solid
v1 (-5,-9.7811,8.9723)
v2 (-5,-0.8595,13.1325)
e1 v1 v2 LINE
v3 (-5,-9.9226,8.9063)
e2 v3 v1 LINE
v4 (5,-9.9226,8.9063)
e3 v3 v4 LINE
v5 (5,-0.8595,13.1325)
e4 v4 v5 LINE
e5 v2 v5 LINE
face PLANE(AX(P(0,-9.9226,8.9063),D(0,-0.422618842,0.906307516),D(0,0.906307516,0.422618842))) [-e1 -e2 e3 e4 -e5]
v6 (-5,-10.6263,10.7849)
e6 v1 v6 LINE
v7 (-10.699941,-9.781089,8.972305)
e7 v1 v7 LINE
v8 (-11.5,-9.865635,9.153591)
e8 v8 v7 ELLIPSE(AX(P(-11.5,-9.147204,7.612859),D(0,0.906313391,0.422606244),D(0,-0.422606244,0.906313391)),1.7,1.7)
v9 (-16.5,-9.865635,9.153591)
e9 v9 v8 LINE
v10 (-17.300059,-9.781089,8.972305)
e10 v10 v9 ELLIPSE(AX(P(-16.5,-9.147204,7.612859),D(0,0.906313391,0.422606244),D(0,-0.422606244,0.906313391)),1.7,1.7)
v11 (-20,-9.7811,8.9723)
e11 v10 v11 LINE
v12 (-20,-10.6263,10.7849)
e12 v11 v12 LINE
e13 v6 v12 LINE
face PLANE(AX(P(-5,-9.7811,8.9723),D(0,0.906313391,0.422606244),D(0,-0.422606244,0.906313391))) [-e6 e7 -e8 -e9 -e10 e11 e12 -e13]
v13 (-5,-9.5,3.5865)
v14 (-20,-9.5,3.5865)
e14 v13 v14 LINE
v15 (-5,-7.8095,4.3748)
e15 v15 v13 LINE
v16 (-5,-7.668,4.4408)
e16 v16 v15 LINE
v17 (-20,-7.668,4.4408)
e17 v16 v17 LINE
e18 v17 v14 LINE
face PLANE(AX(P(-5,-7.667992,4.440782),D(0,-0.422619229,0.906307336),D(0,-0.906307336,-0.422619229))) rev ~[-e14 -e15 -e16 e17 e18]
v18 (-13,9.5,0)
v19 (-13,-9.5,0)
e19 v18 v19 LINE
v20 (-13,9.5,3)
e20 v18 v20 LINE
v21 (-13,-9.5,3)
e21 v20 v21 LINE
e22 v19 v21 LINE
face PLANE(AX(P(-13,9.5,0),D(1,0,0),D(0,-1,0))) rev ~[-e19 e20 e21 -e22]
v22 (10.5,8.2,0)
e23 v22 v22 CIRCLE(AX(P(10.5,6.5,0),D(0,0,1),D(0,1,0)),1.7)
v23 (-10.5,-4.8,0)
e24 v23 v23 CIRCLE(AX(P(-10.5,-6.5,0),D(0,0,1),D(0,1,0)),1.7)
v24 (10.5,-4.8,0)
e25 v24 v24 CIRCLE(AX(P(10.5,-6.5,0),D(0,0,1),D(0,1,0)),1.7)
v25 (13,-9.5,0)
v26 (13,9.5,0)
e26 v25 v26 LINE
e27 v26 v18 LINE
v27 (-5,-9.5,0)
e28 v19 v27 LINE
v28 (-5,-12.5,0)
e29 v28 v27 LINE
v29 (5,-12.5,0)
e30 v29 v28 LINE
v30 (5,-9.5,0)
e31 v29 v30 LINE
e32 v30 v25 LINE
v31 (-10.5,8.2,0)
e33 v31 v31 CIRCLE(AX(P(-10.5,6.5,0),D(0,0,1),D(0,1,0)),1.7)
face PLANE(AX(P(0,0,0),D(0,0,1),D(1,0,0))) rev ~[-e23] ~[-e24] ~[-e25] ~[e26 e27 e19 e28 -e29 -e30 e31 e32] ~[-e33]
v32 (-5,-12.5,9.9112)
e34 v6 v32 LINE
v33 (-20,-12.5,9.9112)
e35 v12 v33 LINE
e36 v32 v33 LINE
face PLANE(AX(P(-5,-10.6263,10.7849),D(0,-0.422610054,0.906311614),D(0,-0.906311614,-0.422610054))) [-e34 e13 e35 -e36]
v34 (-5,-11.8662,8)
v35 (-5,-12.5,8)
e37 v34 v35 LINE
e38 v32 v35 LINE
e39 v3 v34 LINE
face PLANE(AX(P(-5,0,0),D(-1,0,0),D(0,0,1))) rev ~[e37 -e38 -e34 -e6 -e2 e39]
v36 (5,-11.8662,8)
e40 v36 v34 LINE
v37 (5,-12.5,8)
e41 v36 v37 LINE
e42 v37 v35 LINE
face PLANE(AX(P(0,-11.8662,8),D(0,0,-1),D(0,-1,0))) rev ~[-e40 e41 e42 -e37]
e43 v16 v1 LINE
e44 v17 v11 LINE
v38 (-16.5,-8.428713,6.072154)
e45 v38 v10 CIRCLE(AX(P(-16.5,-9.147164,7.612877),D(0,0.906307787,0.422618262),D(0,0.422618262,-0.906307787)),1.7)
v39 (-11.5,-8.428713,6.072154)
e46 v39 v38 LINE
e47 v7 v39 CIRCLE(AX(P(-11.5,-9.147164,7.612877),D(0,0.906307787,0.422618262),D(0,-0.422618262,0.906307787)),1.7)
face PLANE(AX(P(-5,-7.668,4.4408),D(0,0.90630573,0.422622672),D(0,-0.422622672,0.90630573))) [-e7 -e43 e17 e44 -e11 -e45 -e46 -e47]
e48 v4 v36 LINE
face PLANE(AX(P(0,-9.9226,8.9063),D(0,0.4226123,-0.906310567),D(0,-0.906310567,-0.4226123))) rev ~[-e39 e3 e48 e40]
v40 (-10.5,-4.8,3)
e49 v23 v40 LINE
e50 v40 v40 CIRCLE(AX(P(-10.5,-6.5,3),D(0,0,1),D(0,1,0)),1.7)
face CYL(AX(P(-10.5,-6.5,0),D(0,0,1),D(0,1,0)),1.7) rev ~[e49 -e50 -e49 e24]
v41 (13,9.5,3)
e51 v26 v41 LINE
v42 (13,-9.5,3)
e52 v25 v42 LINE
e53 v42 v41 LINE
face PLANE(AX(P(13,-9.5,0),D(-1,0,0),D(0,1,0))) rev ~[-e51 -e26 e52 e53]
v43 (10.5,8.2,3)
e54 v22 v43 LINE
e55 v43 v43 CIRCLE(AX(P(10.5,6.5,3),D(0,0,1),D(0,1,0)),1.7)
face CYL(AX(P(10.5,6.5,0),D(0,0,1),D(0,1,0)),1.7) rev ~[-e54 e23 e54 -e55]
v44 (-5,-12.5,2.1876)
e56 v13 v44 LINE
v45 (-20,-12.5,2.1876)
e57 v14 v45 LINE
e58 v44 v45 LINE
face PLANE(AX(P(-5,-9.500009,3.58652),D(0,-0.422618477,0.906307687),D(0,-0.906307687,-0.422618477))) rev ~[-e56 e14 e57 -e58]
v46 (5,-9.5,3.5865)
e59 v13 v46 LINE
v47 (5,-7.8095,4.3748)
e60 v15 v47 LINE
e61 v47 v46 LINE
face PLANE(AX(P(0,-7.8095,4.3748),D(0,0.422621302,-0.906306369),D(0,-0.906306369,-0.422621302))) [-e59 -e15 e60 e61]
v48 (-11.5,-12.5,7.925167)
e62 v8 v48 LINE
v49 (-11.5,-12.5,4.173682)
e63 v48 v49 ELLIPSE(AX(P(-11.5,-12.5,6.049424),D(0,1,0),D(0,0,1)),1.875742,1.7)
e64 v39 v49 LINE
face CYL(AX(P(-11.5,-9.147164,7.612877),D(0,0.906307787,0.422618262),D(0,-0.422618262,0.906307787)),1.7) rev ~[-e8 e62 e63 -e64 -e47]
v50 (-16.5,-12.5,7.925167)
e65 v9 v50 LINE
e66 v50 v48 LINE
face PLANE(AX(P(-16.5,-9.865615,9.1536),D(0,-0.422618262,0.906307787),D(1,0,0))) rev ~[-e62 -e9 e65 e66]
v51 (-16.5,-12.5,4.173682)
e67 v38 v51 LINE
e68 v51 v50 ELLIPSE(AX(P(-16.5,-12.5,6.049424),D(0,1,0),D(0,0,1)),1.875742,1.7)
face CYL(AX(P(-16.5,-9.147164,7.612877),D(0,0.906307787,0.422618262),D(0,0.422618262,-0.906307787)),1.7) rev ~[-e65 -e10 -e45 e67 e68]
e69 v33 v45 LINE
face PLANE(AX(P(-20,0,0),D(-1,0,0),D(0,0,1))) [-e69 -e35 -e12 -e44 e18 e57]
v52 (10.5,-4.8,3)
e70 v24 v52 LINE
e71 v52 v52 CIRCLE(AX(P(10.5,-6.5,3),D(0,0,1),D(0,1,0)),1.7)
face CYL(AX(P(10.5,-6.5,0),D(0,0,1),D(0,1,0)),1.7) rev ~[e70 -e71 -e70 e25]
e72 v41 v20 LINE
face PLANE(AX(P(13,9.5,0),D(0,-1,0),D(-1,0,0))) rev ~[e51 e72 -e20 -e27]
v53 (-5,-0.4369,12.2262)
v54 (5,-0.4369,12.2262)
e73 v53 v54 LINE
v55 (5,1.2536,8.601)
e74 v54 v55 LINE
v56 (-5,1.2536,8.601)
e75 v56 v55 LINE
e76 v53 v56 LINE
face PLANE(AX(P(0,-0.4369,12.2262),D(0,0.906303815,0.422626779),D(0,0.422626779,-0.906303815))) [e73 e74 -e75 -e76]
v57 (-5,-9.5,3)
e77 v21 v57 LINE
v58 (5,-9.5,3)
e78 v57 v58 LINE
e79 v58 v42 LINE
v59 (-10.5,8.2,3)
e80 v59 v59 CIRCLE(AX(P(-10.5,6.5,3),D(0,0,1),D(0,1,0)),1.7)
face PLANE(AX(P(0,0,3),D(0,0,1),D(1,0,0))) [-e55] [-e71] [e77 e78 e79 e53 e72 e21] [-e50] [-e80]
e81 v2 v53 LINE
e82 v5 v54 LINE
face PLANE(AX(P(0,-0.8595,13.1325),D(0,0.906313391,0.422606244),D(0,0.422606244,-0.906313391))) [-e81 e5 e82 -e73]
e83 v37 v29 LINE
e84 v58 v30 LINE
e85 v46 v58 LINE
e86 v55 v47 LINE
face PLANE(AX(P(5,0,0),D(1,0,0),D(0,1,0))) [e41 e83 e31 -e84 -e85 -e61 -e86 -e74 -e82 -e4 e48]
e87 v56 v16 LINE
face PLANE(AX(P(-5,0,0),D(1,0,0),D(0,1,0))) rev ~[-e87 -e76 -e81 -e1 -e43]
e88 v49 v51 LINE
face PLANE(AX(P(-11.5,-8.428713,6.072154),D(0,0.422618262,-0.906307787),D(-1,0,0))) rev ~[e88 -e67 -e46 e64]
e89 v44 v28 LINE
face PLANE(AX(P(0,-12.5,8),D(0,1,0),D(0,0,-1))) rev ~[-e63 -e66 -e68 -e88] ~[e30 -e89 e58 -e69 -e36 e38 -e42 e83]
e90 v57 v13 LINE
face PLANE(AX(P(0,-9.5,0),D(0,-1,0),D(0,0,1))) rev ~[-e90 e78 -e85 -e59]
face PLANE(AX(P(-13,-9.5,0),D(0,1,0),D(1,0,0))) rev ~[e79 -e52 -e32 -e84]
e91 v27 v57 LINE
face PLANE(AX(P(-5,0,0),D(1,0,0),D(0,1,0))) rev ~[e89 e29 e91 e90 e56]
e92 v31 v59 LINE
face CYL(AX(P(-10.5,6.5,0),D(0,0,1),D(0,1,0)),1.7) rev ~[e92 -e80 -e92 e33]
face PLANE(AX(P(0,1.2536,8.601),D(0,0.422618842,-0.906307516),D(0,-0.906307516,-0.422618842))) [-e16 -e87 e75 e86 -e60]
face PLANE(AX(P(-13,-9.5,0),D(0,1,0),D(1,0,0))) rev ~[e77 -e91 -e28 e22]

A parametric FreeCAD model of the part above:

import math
import FreeCAD as App
import Part
import Sketcher
from FreeCAD import Vector
Q = App.Units.Quantity


def add_polygon(sketch, points):
    """Adds a closed chain of lines whose ends are joined by coincident constraints."""
    first, n = sketch.GeometryCount, len(points)
    for a, b in zip(points, points[1:] + points[:1]):
        sketch.addGeometry(Part.LineSegment(App.Vector(*a, 0), App.Vector(*b, 0)), False)
    for i in range(n):
        sketch.addConstraint(Sketcher.Constraint("Coincident", first + i, 2, first + (i + 1) % n, 1))

doc = App.newDocument("Part")
body = doc.addObject("PartDesign::Body", "Body")

sketch1 = body.newObject("Sketcher::SketchObject", "Sketch")
sketch1.AttachmentSupport = (doc.getObject("XY_Plane"), [""])
sketch1.MapMode = "FlatFace"
add_polygon(sketch1, [(-13, 10), (-13, -10), (13, -10), (13, 10)])
sketch1.addConstraint(Sketcher.Constraint("Vertical", 0))
sketch1.addConstraint(Sketcher.Constraint("Horizontal", 1))
sketch1.addConstraint(Sketcher.Constraint("Vertical", 2))
sketch1.addConstraint(Sketcher.Constraint("Horizontal", 3))
sketch1.addConstraint(Sketcher.Constraint("Symmetric", 0, 2, 2, 2, -1, 1))
sketch1.addConstraint(Sketcher.Constraint("DistanceX", 1, 1, 1, 2, Q("26 mm")))
sketch1.addConstraint(Sketcher.Constraint("DistanceY", 0, 2, 0, 1, Q("19 mm")))
pad1 = body.newObject("PartDesign::Pad", "Pad")
pad1.Profile = sketch1
pad1.Length = 3

sketch2 = body.newObject("Sketcher::SketchObject", "Sketch001")
sketch2.AttachmentSupport = (doc.getObject("XY_Plane"), [""])
sketch2.MapMode = "FlatFace"
sketch2.addGeometry(Part.Circle(Vector(10.5, 6.5, 0), Vector(0, 0, 1), 1.7), False)
sketch2.addGeometry(Part.Circle(Vector(-10.5, 6.5, 0), Vector(0, 0, 1), 1.7), False)
sketch2.addGeometry(Part.Circle(Vector(10.5, -6.5, 0), Vector(0, 0, 1), 1.7), False)
sketch2.addGeometry(Part.Circle(Vector(-10.5, -6.5, 0), Vector(0, 0, 1), 1.7), False)
sketch2.addConstraint(Sketcher.Constraint("Equal", 0, 1))
sketch2.addConstraint(Sketcher.Constraint("Equal", 1, 2))
sketch2.addConstraint(Sketcher.Constraint("Equal", 2, 3))
sketch2.addConstraint(Sketcher.Constraint("Symmetric", 1, 3, 2, 3, -1, 1))
sketch2.addConstraint(Sketcher.Constraint("Symmetric", 0, 3, 3, 3, -1, 1))
sketch2.addConstraint(Sketcher.Constraint("Symmetric", 0, 3, 1, 3, -2))
sketch2.addConstraint(Sketcher.Constraint("Diameter", 0, Q("3.4 mm")))
sketch2.addConstraint(Sketcher.Constraint("DistanceX", 1, 3, 0, 3, Q("21 mm")))
sketch2.addConstraint(Sketcher.Constraint("DistanceY", 2, 3, 0, 3, Q("13 mm")))
doc.recompute()
hole = body.newObject("PartDesign::Hole", "Hole")
hole.Profile = sketch2
hole.ThreadType = "None"
hole.Diameter = 3.4
hole.DepthType = "ThroughAll"
hole.Reversed = True

sketch3 = body.newObject("Sketcher::SketchObject", "Sketch002")
sketch3.AttachmentSupport = (doc.getObject("YZ_Plane"), [""])
sketch3.MapMode = "FlatFace"
add_polygon(sketch3, [(-12.5, 0), (-9.5, 0), (-9.5, 3.6), (-7.8, 4.4), (1.3, 8.6), (-0.4, 12.2), (-0.9, 13.1), (-9.9, 8.9), (-11.9, 8), (-12.5, 8)])
sketch3.addConstraint(Sketcher.Constraint("Horizontal", 0))
sketch3.addConstraint(Sketcher.Constraint("Vertical", 1))
sketch3.addConstraint(Sketcher.Constraint("Horizontal", 8))
sketch3.addConstraint(Sketcher.Constraint("Vertical", 9))
sketch3.addConstraint(Sketcher.Constraint("PointOnObject", 0, 2, -1))
sketch3.addConstraint(Sketcher.Constraint("Parallel", 2, 3))
sketch3.addConstraint(Sketcher.Constraint("Perpendicular", 3, 4))
sketch3.addConstraint(Sketcher.Constraint("Parallel", 4, 5))
sketch3.addConstraint(Sketcher.Constraint("Perpendicular", 5, 6))
sketch3.addConstraint(Sketcher.Constraint("Parallel", 6, 7))
sketch3.addConstraint(Sketcher.Constraint("Equal", 3, 6))
sketch3.addConstraint(Sketcher.Constraint("DistanceX", 0, 1, 0, 2, Q("3 mm")))
sketch3.addConstraint(Sketcher.Constraint("DistanceY", 9, 2, 9, 1, Q("8 mm")))
sketch3.addConstraint(Sketcher.Constraint("Angle", 2, Q("25.0002 deg")))
sketch3.addConstraint(Sketcher.Constraint("Distance", 3, Q("10 mm")))
sketch3.addConstraint(Sketcher.Constraint("Distance", 4, Q("4 mm")))
sketch3.addConstraint(Sketcher.Constraint("Distance", 5, Q("1 mm")))
sketch3.addConstraint(Sketcher.Constraint("Distance", 7, Q("2.1445 mm")))
sketch3.addConstraint(Sketcher.Constraint("DistanceX", 0, 2, -1, 1, Q("9.5 mm")))
sketch3.addConstraint(Sketcher.Constraint("DistanceX", 8, 2, 8, 1, Q("0.6338 mm")))
pad2 = body.newObject("PartDesign::Pad", "Pad001")
pad2.Profile = sketch3
pad2.Length = 10
pad2.Midplane = True

sketch4 = body.newObject("Sketcher::SketchObject", "Sketch003")
sketch4.AttachmentSupport = (doc.getObject("YZ_Plane"), [""])
sketch4.MapMode = "FlatFace"
sketch4.AttachmentOffset = App.Placement(Vector(0, 0, -5), App.Rotation())
add_polygon(sketch4, [(-9.8, 9), (-7.7, 4.4), (-9.5, 3.6), (-12.5, 2.2), (-12.5, 9.9), (-10.6, 10.8)])
sketch4.addConstraint(Sketcher.Constraint("Vertical", 3))
sketch4.addConstraint(Sketcher.Constraint("Perpendicular", 0, 1))
sketch4.addConstraint(Sketcher.Constraint("Parallel", 1, 2))
sketch4.addConstraint(Sketcher.Constraint("Parallel", 2, 4))
sketch4.addConstraint(Sketcher.Constraint("Perpendicular", 4, 5))
sketch4.addConstraint(Sketcher.Constraint("Distance", 5, Q("2 mm")))
sketch4.addConstraint(Sketcher.Constraint("DistanceX", 2, 2, 1, 2, Q("3 mm")))
sketch4.addConstraint(Sketcher.Constraint("Angle", 0, Q("-64.9997 deg")))
sketch4.addConstraint(Sketcher.Constraint("Distance", 0, Q("5 mm")))
sketch4.addConstraint(Sketcher.Constraint("DistanceX", 1, 2, -1, 1, Q("9.5 mm")))
sketch4.addConstraint(Sketcher.Constraint("DistanceX", 0, 2, -1, 1, Q("7.668 mm")))
sketch4.addConstraint(Sketcher.Constraint("DistanceY", -1, 1, 4, 2, Q("10.785 mm")))
pad3 = body.newObject("PartDesign::Pad", "Pad002")
pad3.Profile = sketch4
pad3.Length = 15
pad3.Reversed = True

sketch5 = body.newObject("Sketcher::SketchObject", "Sketch004")
sketch5.Placement = App.Placement(Vector(-20, -7.668, 4.4408), App.Rotation(Vector(1, 0, 0), Vector(0, 0.422618262, -0.906307787), Vector(0, 0.906307787, 0.422618262), "ZXY"))
sketch5.addGeometry(Part.ArcOfCircle(Part.Circle(Vector(3.5, -3.5, 0), Vector(0, 0, 1), 1.7), math.radians(90), math.radians(270)), False)
sketch5.addGeometry(Part.LineSegment(Vector(3.5, -5.2, 0), Vector(8.5, -5.2, 0)), False)
sketch5.addGeometry(Part.ArcOfCircle(Part.Circle(Vector(8.5, -3.5, 0), Vector(0, 0, 1), 1.7), math.radians(-90), math.radians(90)), False)
sketch5.addGeometry(Part.LineSegment(Vector(8.5, -1.8, 0), Vector(3.5, -1.8, 0)), False)
sketch5.addConstraint(Sketcher.Constraint("Tangent", 0, 2, 1, 1))
sketch5.addConstraint(Sketcher.Constraint("Tangent", 1, 2, 2, 1))
sketch5.addConstraint(Sketcher.Constraint("Tangent", 2, 2, 3, 1))
sketch5.addConstraint(Sketcher.Constraint("Tangent", 3, 2, 0, 1))
sketch5.addConstraint(Sketcher.Constraint("Horizontal", 1))
sketch5.addConstraint(Sketcher.Constraint("Horizontal", 3))
sketch5.addConstraint(Sketcher.Constraint("Radius", 0, Q("1.7 mm")))
sketch5.addConstraint(Sketcher.Constraint("DistanceX", 1, 1, 1, 2, Q("5 mm")))
sketch5.addConstraint(Sketcher.Constraint("DistanceX", -1, 1, 0, 3, Q("3.5 mm")))
sketch5.addConstraint(Sketcher.Constraint("DistanceY", 0, 3, -1, 1, Q("3.5 mm")))
pocket1 = body.newObject("PartDesign::Pocket", "Pocket")
pocket1.Profile = sketch5
pocket1.Type = "ThroughAll"

doc.recompute()
